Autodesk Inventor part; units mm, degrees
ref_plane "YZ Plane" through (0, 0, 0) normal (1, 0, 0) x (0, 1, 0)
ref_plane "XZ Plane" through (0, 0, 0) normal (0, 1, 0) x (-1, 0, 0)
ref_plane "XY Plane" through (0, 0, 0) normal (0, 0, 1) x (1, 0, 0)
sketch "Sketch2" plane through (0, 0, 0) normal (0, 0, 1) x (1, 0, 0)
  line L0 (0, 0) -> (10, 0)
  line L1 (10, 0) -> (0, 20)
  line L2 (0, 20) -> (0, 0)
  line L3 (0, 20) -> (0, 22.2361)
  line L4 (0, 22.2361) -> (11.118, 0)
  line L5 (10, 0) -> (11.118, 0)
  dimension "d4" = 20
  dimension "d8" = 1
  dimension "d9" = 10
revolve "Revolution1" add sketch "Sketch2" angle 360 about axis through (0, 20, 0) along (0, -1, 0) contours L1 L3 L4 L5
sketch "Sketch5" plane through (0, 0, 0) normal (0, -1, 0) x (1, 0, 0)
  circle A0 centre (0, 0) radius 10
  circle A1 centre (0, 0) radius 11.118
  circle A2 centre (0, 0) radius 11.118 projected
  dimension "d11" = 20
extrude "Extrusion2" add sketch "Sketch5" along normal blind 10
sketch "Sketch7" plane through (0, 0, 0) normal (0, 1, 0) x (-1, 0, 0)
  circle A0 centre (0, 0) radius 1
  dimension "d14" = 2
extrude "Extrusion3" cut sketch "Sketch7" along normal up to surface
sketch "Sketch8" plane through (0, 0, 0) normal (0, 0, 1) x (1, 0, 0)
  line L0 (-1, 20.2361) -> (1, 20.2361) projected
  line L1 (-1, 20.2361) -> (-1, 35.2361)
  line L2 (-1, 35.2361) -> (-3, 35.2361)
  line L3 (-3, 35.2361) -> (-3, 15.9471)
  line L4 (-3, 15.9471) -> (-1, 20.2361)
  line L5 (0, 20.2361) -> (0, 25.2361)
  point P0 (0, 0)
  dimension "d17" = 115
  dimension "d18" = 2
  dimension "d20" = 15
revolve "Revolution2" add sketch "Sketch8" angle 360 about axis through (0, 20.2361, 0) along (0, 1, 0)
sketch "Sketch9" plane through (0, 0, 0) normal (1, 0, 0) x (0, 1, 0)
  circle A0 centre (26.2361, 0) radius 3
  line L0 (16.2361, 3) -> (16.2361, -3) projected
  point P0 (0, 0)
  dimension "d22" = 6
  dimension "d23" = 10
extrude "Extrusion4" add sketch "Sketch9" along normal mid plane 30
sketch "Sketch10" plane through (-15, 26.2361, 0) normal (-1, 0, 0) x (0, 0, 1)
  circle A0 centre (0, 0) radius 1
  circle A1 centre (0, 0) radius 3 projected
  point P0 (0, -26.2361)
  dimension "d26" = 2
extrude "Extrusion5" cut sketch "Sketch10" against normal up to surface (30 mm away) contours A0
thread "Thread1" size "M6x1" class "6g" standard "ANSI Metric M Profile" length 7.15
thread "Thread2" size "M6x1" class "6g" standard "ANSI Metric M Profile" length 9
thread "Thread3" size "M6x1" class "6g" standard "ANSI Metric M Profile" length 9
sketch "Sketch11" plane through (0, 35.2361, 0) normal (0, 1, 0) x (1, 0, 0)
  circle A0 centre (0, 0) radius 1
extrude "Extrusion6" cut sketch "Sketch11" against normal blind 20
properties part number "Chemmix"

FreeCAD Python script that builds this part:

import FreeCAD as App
import Part
import Sketcher
from FreeCAD import Vector
Q = App.Units.Quantity

doc = App.newDocument("Part")
body = doc.addObject("PartDesign::Body", "Body")

# Sketch on XY plane
sketch1 = body.newObject("Sketcher::SketchObject", "Sketch")
sketch1.AttachmentSupport = (doc.getObject("XY_Plane"), [""])
sketch1.MapMode = "FlatFace"
sketch1.addGeometry(Part.LineSegment(Vector(0, 20, 0), Vector(10, 0, 0)), False)
sketch1.addGeometry(Part.LineSegment(Vector(10, 0, 0), Vector(11.118, 0, 0)), False)
sketch1.addGeometry(Part.LineSegment(Vector(11.118, 0, 0), Vector(0, 22.2361, 0)), False)
sketch1.addGeometry(Part.LineSegment(Vector(0, 22.2361, 0), Vector(0, 20, 0)), False)
sketch1.addConstraint(Sketcher.Constraint("Coincident", 0, 2, 1, 1))
sketch1.addConstraint(Sketcher.Constraint("Coincident", 1, 2, 2, 1))
sketch1.addConstraint(Sketcher.Constraint("Coincident", 2, 2, 3, 1))
sketch1.addConstraint(Sketcher.Constraint("Coincident", 3, 2, 0, 1))
sketch1.addConstraint(Sketcher.Constraint("Horizontal", 1))
sketch1.addConstraint(Sketcher.Constraint("Vertical", 3))
sketch1.addConstraint(Sketcher.Constraint("PointOnObject", 0, 2, -1))
sketch1.addConstraint(Sketcher.Constraint("PointOnObject", 2, 2, -2))
sketch1.addConstraint(Sketcher.Constraint("Parallel", 0, 2))
sketch1.addConstraint(Sketcher.Constraint("DistanceX", -1, 1, 0, 2, Q("10 mm")))
sketch1.addConstraint(Sketcher.Constraint("DistanceY", -1, 1, 3, 2, Q("20 mm")))
sketch1.addConstraint(Sketcher.Constraint("DistanceX", 1, 1, 1, 2, Q("1.118 mm")))
revolution = body.newObject("PartDesign::Revolution", "Revolution")
revolution.Profile = sketch1
revolution.ReferenceAxis = (sketch1, ["V_Axis"])
revolution.Angle = 360

# Sketch on XZ plane
sketch2 = body.newObject("Sketcher::SketchObject", "Sketch001")
sketch2.AttachmentSupport = (doc.getObject("XZ_Plane"), [""])
sketch2.MapMode = "FlatFace"
sketch2.addGeometry(Part.Circle(Vector(0, 0, 0), Vector(0, 0, 1), 11.118), False)
sketch2.addGeometry(Part.Circle(Vector(0, 0, 0), Vector(0, 0, 1), 10), False)
sketch2.addConstraint(Sketcher.Constraint("Coincident", 0, 3, -1, 1))
sketch2.addConstraint(Sketcher.Constraint("Coincident", 1, 3, -1, 1))
sketch2.addConstraint(Sketcher.Constraint("Diameter", 1, Q("20 mm")))
sketch2.addConstraint(Sketcher.Constraint("Diameter", 0, Q("22.236 mm")))
pad1 = body.newObject("PartDesign::Pad", "Pad")
pad1.Profile = sketch2
pad1.Length = 10

# Sketch on XZ plane
sketch3 = body.newObject("Sketcher::SketchObject", "Sketch002")
sketch3.AttachmentSupport = (doc.getObject("XZ_Plane"), [""])
sketch3.MapMode = "FlatFace"
sketch3.addGeometry(Part.Circle(Vector(0, 0, 0), Vector(0, 0, 1), 1), False)
sketch3.addConstraint(Sketcher.Constraint("Coincident", 0, 3, -1, 1))
sketch3.addConstraint(Sketcher.Constraint("Diameter", 0, Q("2 mm")))
pocket1 = body.newObject("PartDesign::Pocket", "Pocket")
pocket1.Profile = sketch3
pocket1.Length = 22.2361

# Sketch on XY plane
sketch4 = body.newObject("Sketcher::SketchObject", "Sketch003")
sketch4.AttachmentSupport = (doc.getObject("XY_Plane"), [""])
sketch4.MapMode = "FlatFace"
sketch4.addGeometry(Part.LineSegment(Vector(-3, 15.9471, 0), Vector(-1, 20.2361, 0)), False)
sketch4.addGeometry(Part.LineSegment(Vector(-1, 20.2361, 0), Vector(-1, 35.2361, 0)), False)
sketch4.addGeometry(Part.LineSegment(Vector(-1, 35.2361, 0), Vector(-3, 35.2361, 0)), False)
sketch4.addGeometry(Part.LineSegment(Vector(-3, 35.2361, 0), Vector(-3, 15.9471, 0)), False)
sketch4.addConstraint(Sketcher.Constraint("Coincident", 0, 2, 1, 1))
sketch4.addConstraint(Sketcher.Constraint("Coincident", 1, 2, 2, 1))
sketch4.addConstraint(Sketcher.Constraint("Coincident", 2, 2, 3, 1))
sketch4.addConstraint(Sketcher.Constraint("Coincident", 3, 2, 0, 1))
sketch4.addConstraint(Sketcher.Constraint("Vertical", 1))
sketch4.addConstraint(Sketcher.Constraint("Horizontal", 2))
sketch4.addConstraint(Sketcher.Constraint("Vertical", 3))
sketch4.addConstraint(Sketcher.Constraint("DistanceX", 2, 2, 2, 1, Q("2 mm")))
sketch4.addConstraint(Sketcher.Constraint("DistanceY", 1, 1, 1, 2, Q("15 mm")))
sketch4.addConstraint(Sketcher.Constraint("Angle", 0, Q("65 deg")))
sketch4.addConstraint(Sketcher.Constraint("DistanceX", 0, 2, -1, 1, Q("1 mm")))
sketch4.addConstraint(Sketcher.Constraint("DistanceY", -1, 1, 0, 2, Q("20.236 mm")))
revolution2 = body.newObject("PartDesign::Revolution", "Revolution001")
revolution2.Profile = sketch4
revolution2.ReferenceAxis = (sketch4, ["V_Axis"])
revolution2.Angle = 360

# Sketch on YZ plane
sketch5 = body.newObject("Sketcher::SketchObject", "Sketch004")
sketch5.AttachmentSupport = (doc.getObject("YZ_Plane"), [""])
sketch5.MapMode = "FlatFace"
sketch5.addGeometry(Part.Circle(Vector(26.2361, 0, 0), Vector(0, 0, 1), 3), False)
sketch5.addConstraint(Sketcher.Constraint("PointOnObject", 0, 3, -1))
sketch5.addConstraint(Sketcher.Constraint("Diameter", 0, Q("6 mm")))
sketch5.addConstraint(Sketcher.Constraint("DistanceX", -1, 1, 0, 3, Q("26.236 mm")))
pad2 = body.newObject("PartDesign::Pad", "Pad001")
pad2.Profile = sketch5
pad2.Length = 30
pad2.Midplane = True

# Sketch on YZ plane
sketch6 = body.newObject("Sketcher::SketchObject", "Sketch005")
sketch6.AttachmentSupport = (doc.getObject("YZ_Plane"), [""])
sketch6.MapMode = "FlatFace"
sketch6.AttachmentOffset = App.Placement(Vector(0, 0, -15), App.Rotation())
sketch6.addGeometry(Part.Circle(Vector(26.2361, 0, 0), Vector(0, 0, 1), 1), False)
sketch6.addConstraint(Sketcher.Constraint("PointOnObject", 0, 3, -1))
sketch6.addConstraint(Sketcher.Constraint("Diameter", 0, Q("2 mm")))
sketch6.addConstraint(Sketcher.Constraint("DistanceX", -1, 1, 0, 3, Q("26.236 mm")))
pocket2 = body.newObject("PartDesign::Pocket", "Pocket001")
pocket2.Profile = sketch6
pocket2.Length = 30
pocket2.Reversed = True

# Sketch on XZ plane
sketch7 = body.newObject("Sketcher::SketchObject", "Sketch006")
sketch7.AttachmentSupport = (doc.getObject("XZ_Plane"), [""])
sketch7.MapMode = "FlatFace"
sketch7.AttachmentOffset = App.Placement(Vector(0, 0, -35.2361), App.Rotation())
sketch7.addGeometry(Part.Circle(Vector(0, 0, 0), Vector(0, 0, 1), 1), False)
sketch7.addConstraint(Sketcher.Constraint("Coincident", 0, 3, -1, 1))
sketch7.addConstraint(Sketcher.Constraint("Diameter", 0, Q("2 mm")))
pocket3 = body.newObject("PartDesign::Pocket", "Pocket002")
pocket3.Profile = sketch7
pocket3.Length = 20
pocket3.Reversed = True

doc.recompute()
